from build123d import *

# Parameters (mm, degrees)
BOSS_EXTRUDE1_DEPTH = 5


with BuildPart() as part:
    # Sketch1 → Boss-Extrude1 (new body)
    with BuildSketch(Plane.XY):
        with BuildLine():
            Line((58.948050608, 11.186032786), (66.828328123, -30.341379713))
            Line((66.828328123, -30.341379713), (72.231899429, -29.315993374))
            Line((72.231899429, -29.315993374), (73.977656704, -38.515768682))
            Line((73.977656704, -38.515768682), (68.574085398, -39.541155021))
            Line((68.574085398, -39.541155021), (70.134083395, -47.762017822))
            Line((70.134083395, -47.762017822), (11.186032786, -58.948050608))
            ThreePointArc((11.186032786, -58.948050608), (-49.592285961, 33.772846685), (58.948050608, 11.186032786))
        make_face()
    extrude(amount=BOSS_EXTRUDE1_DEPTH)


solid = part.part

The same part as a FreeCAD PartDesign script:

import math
import FreeCAD as App
import Part
import Sketcher

V = App.Vector
Q = App.Units.Quantity

doc = App.newDocument("Part")
body = doc.addObject("PartDesign::Body", "Body")

# Sketch on XY plane
sketch1 = body.newObject("Sketcher::SketchObject", "Sketch")
sketch1.AttachmentSupport = (doc.getObject("XY_Plane"), [""])
sketch1.MapMode = "FlatFace"
sketch1.addGeometry([
    Part.LineSegment(V(67, -30, 0), V(59, 11, 0)),  # 0
    Part.ArcOfCircle(Part.Circle(V(0, 0, 0), V(0, 0, 1), 60), math.radians(11), math.radians(281)),  # 1
    Part.LineSegment(V(11, -59, 0), V(70, -48, 0)),  # 2
    Part.LineSegment(V(70, -48, 0), V(69, -40, 0)),  # 3
    Part.LineSegment(V(69, -40, 0), V(74, -39, 0)),  # 4
    Part.LineSegment(V(74, -39, 0), V(72, -29, 0)),  # 5
    Part.LineSegment(V(72, -29, 0), V(67, -30, 0)),  # 6
], False)
sketch1.addConstraint([
    Sketcher.Constraint("Tangent", 0, 2, 1, 1),
    Sketcher.Constraint("Tangent", 1, 2, 2, 1),
    Sketcher.Constraint("Coincident", 2, 2, 3, 1),
    Sketcher.Constraint("Coincident", 3, 2, 4, 1),
    Sketcher.Constraint("Coincident", 4, 2, 5, 1),
    Sketcher.Constraint("Coincident", 5, 2, 6, 1),
    Sketcher.Constraint("Coincident", 6, 2, 0, 1),
    Sketcher.Constraint("Coincident", 1, 3, -1, 1),
    Sketcher.Constraint("Perpendicular", 0, 2),
    Sketcher.Constraint("Perpendicular", 2, 3),
    Sketcher.Constraint("Perpendicular", 3, 4),
    Sketcher.Constraint("Perpendicular", 4, 5),
    Sketcher.Constraint("Perpendicular", 5, 6),
    Sketcher.Constraint("Equal", 4, 6),
    Sketcher.Constraint("Radius", 1, Q("60 mm")),
    Sketcher.Constraint("Distance", 4, Q("5.5 mm")),
    Sketcher.Constraint("DistanceX", -1, 1, 5, 2, Q("72.231899 mm")),
    Sketcher.Constraint("DistanceY", 4, 2, 0, 2, Q("49.701801 mm")),
    Sketcher.Constraint("Distance", 5, Q("9.363949 mm")),
])
pad1 = body.newObject("PartDesign::Pad", "Pad")
pad1.Profile = sketch1
pad1.Length = 5

doc.recompute()
